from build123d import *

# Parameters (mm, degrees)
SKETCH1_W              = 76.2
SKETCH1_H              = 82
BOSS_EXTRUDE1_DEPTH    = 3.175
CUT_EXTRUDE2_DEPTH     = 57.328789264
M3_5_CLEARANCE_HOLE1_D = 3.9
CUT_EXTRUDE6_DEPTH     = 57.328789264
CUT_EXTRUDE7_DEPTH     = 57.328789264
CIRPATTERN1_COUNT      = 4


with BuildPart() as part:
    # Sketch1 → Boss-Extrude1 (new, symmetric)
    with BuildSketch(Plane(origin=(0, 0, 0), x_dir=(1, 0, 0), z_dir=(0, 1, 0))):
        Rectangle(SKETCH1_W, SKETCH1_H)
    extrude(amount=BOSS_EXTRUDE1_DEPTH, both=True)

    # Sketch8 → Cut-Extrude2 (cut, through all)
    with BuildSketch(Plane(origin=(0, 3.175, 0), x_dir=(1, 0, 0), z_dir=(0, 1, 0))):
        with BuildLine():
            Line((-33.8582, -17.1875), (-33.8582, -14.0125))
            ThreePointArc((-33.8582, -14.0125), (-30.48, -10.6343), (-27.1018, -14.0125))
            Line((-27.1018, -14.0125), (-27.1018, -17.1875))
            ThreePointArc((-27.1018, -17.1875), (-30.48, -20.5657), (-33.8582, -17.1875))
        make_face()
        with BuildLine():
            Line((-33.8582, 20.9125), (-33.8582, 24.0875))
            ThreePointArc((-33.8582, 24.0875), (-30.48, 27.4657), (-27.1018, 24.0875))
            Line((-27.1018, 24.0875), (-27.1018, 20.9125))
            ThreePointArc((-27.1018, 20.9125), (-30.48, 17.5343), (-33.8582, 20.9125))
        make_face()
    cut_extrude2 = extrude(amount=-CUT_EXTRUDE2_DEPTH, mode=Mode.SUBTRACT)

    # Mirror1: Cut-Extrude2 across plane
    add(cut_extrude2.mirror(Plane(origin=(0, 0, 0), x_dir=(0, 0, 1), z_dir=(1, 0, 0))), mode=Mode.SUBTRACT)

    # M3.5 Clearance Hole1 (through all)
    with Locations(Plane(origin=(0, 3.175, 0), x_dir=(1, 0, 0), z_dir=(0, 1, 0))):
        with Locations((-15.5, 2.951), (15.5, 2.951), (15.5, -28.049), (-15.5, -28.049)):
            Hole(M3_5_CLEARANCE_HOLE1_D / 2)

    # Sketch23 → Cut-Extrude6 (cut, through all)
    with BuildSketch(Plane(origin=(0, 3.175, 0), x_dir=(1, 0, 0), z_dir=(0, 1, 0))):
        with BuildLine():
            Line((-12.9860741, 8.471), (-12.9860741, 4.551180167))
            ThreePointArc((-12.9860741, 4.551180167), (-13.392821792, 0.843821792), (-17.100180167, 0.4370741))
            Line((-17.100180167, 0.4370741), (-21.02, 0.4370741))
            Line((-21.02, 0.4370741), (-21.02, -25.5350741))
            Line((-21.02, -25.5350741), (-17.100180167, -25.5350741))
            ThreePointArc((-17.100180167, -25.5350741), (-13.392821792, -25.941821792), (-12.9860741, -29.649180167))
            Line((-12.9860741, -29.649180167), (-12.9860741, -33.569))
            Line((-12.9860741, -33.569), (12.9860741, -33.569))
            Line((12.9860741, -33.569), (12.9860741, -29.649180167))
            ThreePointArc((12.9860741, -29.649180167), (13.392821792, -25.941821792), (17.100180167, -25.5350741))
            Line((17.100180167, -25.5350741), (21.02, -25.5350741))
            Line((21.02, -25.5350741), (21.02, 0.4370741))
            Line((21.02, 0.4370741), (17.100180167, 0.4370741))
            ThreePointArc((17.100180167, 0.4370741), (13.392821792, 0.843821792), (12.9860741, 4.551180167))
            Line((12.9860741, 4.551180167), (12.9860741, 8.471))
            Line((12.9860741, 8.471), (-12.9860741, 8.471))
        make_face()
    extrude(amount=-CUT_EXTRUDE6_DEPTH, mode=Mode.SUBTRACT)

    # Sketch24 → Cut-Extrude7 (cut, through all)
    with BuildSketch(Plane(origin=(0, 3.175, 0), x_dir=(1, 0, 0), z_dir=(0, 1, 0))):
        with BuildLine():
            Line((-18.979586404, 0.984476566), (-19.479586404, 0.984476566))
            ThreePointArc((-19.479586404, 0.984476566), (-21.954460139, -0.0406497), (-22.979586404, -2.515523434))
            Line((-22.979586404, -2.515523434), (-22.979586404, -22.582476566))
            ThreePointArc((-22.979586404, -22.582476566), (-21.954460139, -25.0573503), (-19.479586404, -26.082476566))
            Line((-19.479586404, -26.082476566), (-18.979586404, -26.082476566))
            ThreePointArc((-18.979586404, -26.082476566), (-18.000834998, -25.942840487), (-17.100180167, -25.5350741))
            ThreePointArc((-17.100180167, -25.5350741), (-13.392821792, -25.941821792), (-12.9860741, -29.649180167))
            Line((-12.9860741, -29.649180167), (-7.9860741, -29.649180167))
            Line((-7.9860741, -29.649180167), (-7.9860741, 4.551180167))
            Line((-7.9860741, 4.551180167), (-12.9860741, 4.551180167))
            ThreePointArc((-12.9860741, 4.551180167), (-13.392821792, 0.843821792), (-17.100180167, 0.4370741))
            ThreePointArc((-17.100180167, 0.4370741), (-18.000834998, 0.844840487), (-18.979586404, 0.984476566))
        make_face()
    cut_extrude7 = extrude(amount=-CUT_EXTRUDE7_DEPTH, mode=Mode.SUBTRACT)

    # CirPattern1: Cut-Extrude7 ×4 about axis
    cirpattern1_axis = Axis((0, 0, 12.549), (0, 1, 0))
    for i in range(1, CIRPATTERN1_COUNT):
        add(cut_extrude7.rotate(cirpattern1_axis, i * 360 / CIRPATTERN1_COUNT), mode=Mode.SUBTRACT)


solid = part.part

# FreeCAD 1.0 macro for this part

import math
import FreeCAD as App
import Part
import Sketcher

V = App.Vector
Q = App.Units.Quantity


def add_polygon(sketch, points):
    """Adds a closed chain of lines whose ends are joined by coincident constraints."""
    first, n = sketch.GeometryCount, len(points)
    for a, b in zip(points, points[1:] + points[:1]):
        sketch.addGeometry(Part.LineSegment(App.Vector(*a, 0), App.Vector(*b, 0)), False)
    for i in range(n):
        sketch.addConstraint(Sketcher.Constraint("Coincident", first + i, 2, first + (i + 1) % n, 1))

doc = App.newDocument("Part")
body = doc.addObject("PartDesign::Body", "Body")

sketch1 = body.newObject("Sketcher::SketchObject", "Sketch")
sketch1.AttachmentSupport = (doc.getObject("XZ_Plane"), [""])
sketch1.MapMode = "FlatFace"
add_polygon(sketch1, [(-38.1, -41), (-38.1, 41), (38.1, 41), (38.1, -41)])
sketch1.addConstraint([
    Sketcher.Constraint("Vertical", 0),
    Sketcher.Constraint("Horizontal", 1),
    Sketcher.Constraint("Vertical", 2),
    Sketcher.Constraint("Horizontal", 3),
    Sketcher.Constraint("Symmetric", 0, 2, 2, 2, -1, 1),
    Sketcher.Constraint("DistanceY", 0, 1, 0, 2, Q("82 mm")),
    Sketcher.Constraint("DistanceX", 1, 1, 1, 2, Q("76.2 mm")),
])
pad1 = body.newObject("PartDesign::Pad", "Pad")
pad1.Profile = sketch1
pad1.Length = 6.35
pad1.Midplane = True

sketch2 = body.newObject("Sketcher::SketchObject", "Sketch001")
sketch2.AttachmentSupport = (doc.getObject("XZ_Plane"), [""])
sketch2.MapMode = "FlatFace"
sketch2.AttachmentOffset = App.Placement(V(0, 0, -3.175), App.Rotation())
sketch2.addGeometry([
    Part.LineSegment(V(-33.8582, 14.0125, 0), V(-33.8582, 17.1875, 0)),
    Part.ArcOfCircle(Part.Circle(V(-30.48, 17.1875, 0), V(0, 0, 1), 3.3782), math.radians(0), math.radians(180)),
    Part.LineSegment(V(-27.1018, 17.1875, 0), V(-27.1018, 14.0125, 0)),
    Part.ArcOfCircle(Part.Circle(V(-30.48, 14.0125, 0), V(0, 0, 1), 3.3782), math.radians(180), math.radians(360)),
    Part.LineSegment(V(-33.8582, -24.0875, 0), V(-33.8582, -20.9125, 0)),
    Part.ArcOfCircle(Part.Circle(V(-30.48, -20.9125, 0), V(0, 0, 1), 3.3782), math.radians(0), math.radians(180)),
    Part.LineSegment(V(-27.1018, -20.9125, 0), V(-27.1018, -24.0875, 0)),
    Part.ArcOfCircle(Part.Circle(V(-30.48, -24.0875, 0), V(0, 0, 1), 3.3782), math.radians(180), math.radians(360)),
], False)
sketch2.addConstraint([
    Sketcher.Constraint("Tangent", 0, 2, 1, 2),
    Sketcher.Constraint("Tangent", 1, 1, 2, 1),
    Sketcher.Constraint("Tangent", 2, 2, 3, 2),
    Sketcher.Constraint("Tangent", 3, 1, 0, 1),
    Sketcher.Constraint("Tangent", 4, 2, 5, 2),
    Sketcher.Constraint("Tangent", 5, 1, 6, 1),
    Sketcher.Constraint("Tangent", 6, 2, 7, 2),
    Sketcher.Constraint("Tangent", 7, 1, 4, 1),
    Sketcher.Constraint("Vertical", 0),
    Sketcher.Constraint("Vertical", 2),
    Sketcher.Constraint("Vertical", 4),
    Sketcher.Constraint("Vertical", 6),
    Sketcher.Constraint("Equal", 3, 5),
    Sketcher.Constraint("Vertical", 3, 3, 5, 3),
    Sketcher.Constraint("Equal", 2, 4),
    Sketcher.Constraint("Radius", 1, Q("3.3782 mm")),
    Sketcher.Constraint("DistanceY", 5, 3, 1, 3, Q("38.1 mm")),
    Sketcher.Constraint("DistanceY", 0, 1, 0, 2, Q("3.175 mm")),
    Sketcher.Constraint("DistanceX", 1, 3, -1, 1, Q("30.48 mm")),
    Sketcher.Constraint("DistanceY", -1, 1, 1, 3, Q("17.1875 mm")),
])
pocket1 = body.newObject("PartDesign::Pocket", "Pocket")
pocket1.Profile = sketch2
pocket1.Type = "ThroughAll"
pocket1.Reversed = True
doc.recompute()

mirrored = body.newObject("PartDesign::Mirrored", "Mirrored")
mirrored.Originals = [pocket1]
mirrored.MirrorPlane = (doc.getObject("YZ_Plane"), [""])
body.Tip = mirrored

sketch3 = body.newObject("Sketcher::SketchObject", "Sketch002")
sketch3.AttachmentSupport = (doc.getObject("XZ_Plane"), [""])
sketch3.MapMode = "FlatFace"
sketch3.AttachmentOffset = App.Placement(V(0, 0, -3.175), App.Rotation())
sketch3.addGeometry([
    Part.Circle(V(-15.5, -2.951, 0), V(0, 0, 1), 1.95),
    Part.Circle(V(15.5, -2.951, 0), V(0, 0, 1), 1.95),
    Part.Circle(V(15.5, 28.049, 0), V(0, 0, 1), 1.95),
    Part.Circle(V(-15.5, 28.049, 0), V(0, 0, 1), 1.95),
], False)
sketch3.addConstraint([
    Sketcher.Constraint("Equal", 0, 1),
    Sketcher.Constraint("Equal", 1, 2),
    Sketcher.Constraint("Equal", 2, 3),
    Sketcher.Constraint("Symmetric", 0, 3, 1, 3, -2),
    Sketcher.Constraint("Symmetric", 2, 3, 3, 3, -2),
    Sketcher.Constraint("Vertical", 1, 3, 2, 3),
    Sketcher.Constraint("Diameter", 0, Q("3.9 mm")),
    Sketcher.Constraint("DistanceX", 0, 3, 1, 3, Q("31 mm")),
    Sketcher.Constraint("DistanceY", 1, 3, 2, 3, Q("31 mm")),
    Sketcher.Constraint("DistanceY", 0, 3, -1, 1, Q("2.951 mm")),
])
doc.recompute()
hole = body.newObject("PartDesign::Hole", "Hole")
hole.Profile = sketch3
hole.ThreadType = "None"
hole.Diameter = 3.9
hole.DepthType = "ThroughAll"
hole.Reversed = True

sketch4 = body.newObject("Sketcher::SketchObject", "Sketch003")
sketch4.AttachmentSupport = (doc.getObject("XZ_Plane"), [""])
sketch4.MapMode = "FlatFace"
sketch4.AttachmentOffset = App.Placement(V(0, 0, -3.175), App.Rotation())
sketch4.addGeometry([
    Part.LineSegment(V(-12.986074, -8.471, 0), V(-12.986074, -4.55118, 0)),
    Part.ArcOfCircle(Part.Circle(V(-15.5, -2.951, 0), V(0, 0, 1), 2.98), math.radians(-32.477829), math.radians(122.477829)),
    Part.LineSegment(V(-17.10018, -0.437074, 0), V(-21.02, -0.437074, 0)),
    Part.LineSegment(V(-21.02, -0.437074, 0), V(-21.02, 25.535074, 0)),
    Part.LineSegment(V(-21.02, 25.535074, 0), V(-17.10018, 25.535074, 0)),
    Part.ArcOfCircle(Part.Circle(V(-15.5, 28.049, 0), V(0, 0, 1), 2.98), math.radians(-122.477829), math.radians(32.477829)),
    Part.LineSegment(V(-12.986074, 29.64918, 0), V(-12.986074, 33.569, 0)),
    Part.LineSegment(V(-12.986074, 33.569, 0), V(12.986074, 33.569, 0)),
    Part.LineSegment(V(12.986074, 33.569, 0), V(12.986074, 29.64918, 0)),
    Part.ArcOfCircle(Part.Circle(V(15.5, 28.049, 0), V(0, 0, 1), 2.98), math.radians(147.522171), math.radians(302.477829)),
    Part.LineSegment(V(17.10018, 25.535074, 0), V(21.02, 25.535074, 0)),
    Part.LineSegment(V(21.02, 25.535074, 0), V(21.02, -0.437074, 0)),
    Part.LineSegment(V(21.02, -0.437074, 0), V(17.10018, -0.437074, 0)),
    Part.ArcOfCircle(Part.Circle(V(15.5, -2.951, 0), V(0, 0, 1), 2.98), math.radians(57.522171), math.radians(212.477829)),
    Part.LineSegment(V(12.986074, -4.55118, 0), V(12.986074, -8.471, 0)),
    Part.LineSegment(V(12.986074, -8.471, 0), V(-12.986074, -8.471, 0)),
], False)
sketch4.addConstraint([
    Sketcher.Constraint("Coincident", 0, 2, 1, 1),
    Sketcher.Constraint("Coincident", 1, 2, 2, 1),
    Sketcher.Constraint("Coincident", 2, 2, 3, 1),
    Sketcher.Constraint("Coincident", 3, 2, 4, 1),
    Sketcher.Constraint("Coincident", 4, 2, 5, 1),
    Sketcher.Constraint("Coincident", 5, 2, 6, 1),
    Sketcher.Constraint("Coincident", 6, 2, 7, 1),
    Sketcher.Constraint("Coincident", 7, 2, 8, 1),
    Sketcher.Constraint("Coincident", 8, 2, 9, 1),
    Sketcher.Constraint("Coincident", 9, 2, 10, 1),
    Sketcher.Constraint("Coincident", 10, 2, 11, 1),
    Sketcher.Constraint("Coincident", 11, 2, 12, 1),
    Sketcher.Constraint("Coincident", 12, 2, 13, 1),
    Sketcher.Constraint("Coincident", 13, 2, 14, 1),
    Sketcher.Constraint("Coincident", 14, 2, 15, 1),
    Sketcher.Constraint("Coincident", 15, 2, 0, 1),
    Sketcher.Constraint("Vertical", 0),
    Sketcher.Constraint("Horizontal", 2),
    Sketcher.Constraint("Vertical", 3),
    Sketcher.Constraint("Horizontal", 4),
    Sketcher.Constraint("Vertical", 6),
    Sketcher.Constraint("Horizontal", 7),
    Sketcher.Constraint("Vertical", 8),
    Sketcher.Constraint("Horizontal", 10),
    Sketcher.Constraint("Vertical", 11),
    Sketcher.Constraint("Horizontal", 12),
    Sketcher.Constraint("Vertical", 14),
    Sketcher.Constraint("Horizontal", 15),
    Sketcher.Constraint("Equal", 1, 5),
    Sketcher.Constraint("Equal", 5, 9),
    Sketcher.Constraint("Equal", 9, 13),
    Sketcher.Constraint("Symmetric", 5, 3, 9, 3, -2),
    Sketcher.Constraint("Symmetric", 1, 3, 13, 3, -2),
    Sketcher.Constraint("Symmetric", 3, 2, 10, 2, -2),
    Sketcher.Constraint("Horizontal", 5, 2, 8, 2),
    Sketcher.Constraint("Horizontal", 2, 2, 11, 2),
    Sketcher.Constraint("Horizontal", 0, 2, 13, 2),
    Sketcher.Constraint("Vertical", 1, 3, 5, 3),
    Sketcher.Constraint("Vertical", 1, 2, 4, 2),
    Sketcher.Constraint("Vertical", 0, 2, 5, 2),
    Sketcher.Constraint("Equal", 12, 0),
    Sketcher.Constraint("Equal", 15, 3),
    Sketcher.Constraint("Equal", 0, 6),
    Sketcher.Constraint("Radius", 1, Q("2.98 mm")),
    Sketcher.Constraint("DistanceY", 1, 3, 5, 3, Q("31 mm")),
    Sketcher.Constraint("DistanceX", 5, 3, 9, 3, Q("31 mm")),
    Sketcher.Constraint("DistanceX", 2, 2, -1, 1, Q("21.02 mm")),
    Sketcher.Constraint("DistanceY", 1, 3, -1, 1, Q("2.951 mm")),
    Sketcher.Constraint("DistanceX", 2, 2, 2, 1, Q("3.91982 mm")),
])
pocket2 = body.newObject("PartDesign::Pocket", "Pocket001")
pocket2.Profile = sketch4
pocket2.Type = "ThroughAll"
pocket2.Reversed = True

sketch5 = body.newObject("Sketcher::SketchObject", "Sketch004")
sketch5.AttachmentSupport = (doc.getObject("XZ_Plane"), [""])
sketch5.MapMode = "FlatFace"
sketch5.AttachmentOffset = App.Placement(V(0, 0, -3.175), App.Rotation())
sketch5.addGeometry([
    Part.LineSegment(V(-18.979586, -0.984477, 0), V(-19.479586, -0.984477, 0)),
    Part.ArcOfCircle(Part.Circle(V(-19.479586, 2.515523, 0), V(0, 0, 1), 3.5), math.radians(180), math.radians(270)),
    Part.LineSegment(V(-22.979586, 2.515523, 0), V(-22.979586, 22.582477, 0)),
    Part.ArcOfCircle(Part.Circle(V(-19.479586, 22.582477, 0), V(0, 0, 1), 3.5), math.radians(90), math.radians(180)),
    Part.LineSegment(V(-19.479586, 26.082477, 0), V(-18.979586, 26.082477, 0)),
    Part.ArcOfCircle(Part.Circle(V(-18.979586, 22.582477, 0), V(0, 0, 1), 3.5), math.radians(57.522171), math.radians(90)),
    Part.ArcOfCircle(Part.Circle(V(-15.5, 28.049, 0), V(0, 0, 1), 2.98), math.radians(-122.477829), math.radians(32.477829)),
    Part.LineSegment(V(-12.986074, 29.64918, 0), V(-7.986074, 29.64918, 0)),
    Part.LineSegment(V(-7.986074, 29.64918, 0), V(-7.986074, -4.55118, 0)),
    Part.LineSegment(V(-7.986074, -4.55118, 0), V(-12.986074, -4.55118, 0)),
    Part.ArcOfCircle(Part.Circle(V(-15.5, -2.951, 0), V(0, 0, 1), 2.98), math.radians(-32.477829), math.radians(122.477829)),
    Part.ArcOfCircle(Part.Circle(V(-18.979586, 2.515523, 0), V(0, 0, 1), 3.5), math.radians(-90), math.radians(-57.522171)),
], False)
sketch5.addConstraint([
    Sketcher.Constraint("Tangent", 0, 2, 1, 2),
    Sketcher.Constraint("Tangent", 1, 1, 2, 1),
    Sketcher.Constraint("Tangent", 2, 2, 3, 2),
    Sketcher.Constraint("Tangent", 3, 1, 4, 1),
    Sketcher.Constraint("Tangent", 4, 2, 5, 2),
    Sketcher.Constraint("Tangent", 5, 1, 6, 1),
    Sketcher.Constraint("Coincident", 6, 2, 7, 1),
    Sketcher.Constraint("Coincident", 7, 2, 8, 1),
    Sketcher.Constraint("Coincident", 8, 2, 9, 1),
    Sketcher.Constraint("Coincident", 9, 2, 10, 1),
    Sketcher.Constraint("Tangent", 10, 2, 11, 2),
    Sketcher.Constraint("Tangent", 11, 1, 0, 1),
    Sketcher.Constraint("Horizontal", 0),
    Sketcher.Constraint("Vertical", 2),
    Sketcher.Constraint("Horizontal", 4),
    Sketcher.Constraint("Horizontal", 7),
    Sketcher.Constraint("Vertical", 8),
    Sketcher.Constraint("Horizontal", 9),
    Sketcher.Constraint("Equal", 1, 3),
    Sketcher.Constraint("Equal", 3, 5),
    Sketcher.Constraint("Equal", 6, 10),
    Sketcher.Constraint("Equal", 5, 11),
    Sketcher.Constraint("Vertical", 6, 3, 10, 3),
    Sketcher.Constraint("Vertical", 5, 3, 11, 3),
    Sketcher.Constraint("Vertical", 6, 2, 9, 2),
    Sketcher.Constraint("Radius", 1, Q("3.5 mm")),
    Sketcher.Constraint("DistanceX", 7, 1, 7, 2, Q("5 mm")),
    Sketcher.Constraint("Radius", 6, Q("2.98 mm")),
    Sketcher.Constraint("DistanceX", 0, 2, 0, 1, Q("0.5 mm")),
    Sketcher.Constraint("DistanceY", 10, 3, 6, 3, Q("31 mm")),
    Sketcher.Constraint("DistanceX", 6, 3, -1, 1, Q("15.5 mm")),
    Sketcher.Constraint("DistanceY", -1, 1, 6, 3, Q("28.049 mm")),
    Sketcher.Constraint("DistanceY", 8, 2, 8, 1, Q("34.20036 mm")),
    Sketcher.Constraint("DistanceY", 2, 1, 2, 2, Q("20.066953 mm")),
])
pocket3 = body.newObject("PartDesign::Pocket", "Pocket002")
pocket3.Profile = sketch5
pocket3.Type = "ThroughAll"
pocket3.Reversed = True
doc.recompute()

datumline = body.newObject("PartDesign::Line", "DatumLine")
datumline.Placement = App.Placement(V(0, 0, 12.549), App.Rotation(V(0, 0, 1), V(0, 1, 0)))
polarpattern = body.newObject("PartDesign::PolarPattern", "PolarPattern")
polarpattern.Originals = [pocket3]
polarpattern.Axis = (datumline, [""])
polarpattern.Angle = 360
polarpattern.Occurrences = 4
body.Tip = polarpattern

doc.recompute()
